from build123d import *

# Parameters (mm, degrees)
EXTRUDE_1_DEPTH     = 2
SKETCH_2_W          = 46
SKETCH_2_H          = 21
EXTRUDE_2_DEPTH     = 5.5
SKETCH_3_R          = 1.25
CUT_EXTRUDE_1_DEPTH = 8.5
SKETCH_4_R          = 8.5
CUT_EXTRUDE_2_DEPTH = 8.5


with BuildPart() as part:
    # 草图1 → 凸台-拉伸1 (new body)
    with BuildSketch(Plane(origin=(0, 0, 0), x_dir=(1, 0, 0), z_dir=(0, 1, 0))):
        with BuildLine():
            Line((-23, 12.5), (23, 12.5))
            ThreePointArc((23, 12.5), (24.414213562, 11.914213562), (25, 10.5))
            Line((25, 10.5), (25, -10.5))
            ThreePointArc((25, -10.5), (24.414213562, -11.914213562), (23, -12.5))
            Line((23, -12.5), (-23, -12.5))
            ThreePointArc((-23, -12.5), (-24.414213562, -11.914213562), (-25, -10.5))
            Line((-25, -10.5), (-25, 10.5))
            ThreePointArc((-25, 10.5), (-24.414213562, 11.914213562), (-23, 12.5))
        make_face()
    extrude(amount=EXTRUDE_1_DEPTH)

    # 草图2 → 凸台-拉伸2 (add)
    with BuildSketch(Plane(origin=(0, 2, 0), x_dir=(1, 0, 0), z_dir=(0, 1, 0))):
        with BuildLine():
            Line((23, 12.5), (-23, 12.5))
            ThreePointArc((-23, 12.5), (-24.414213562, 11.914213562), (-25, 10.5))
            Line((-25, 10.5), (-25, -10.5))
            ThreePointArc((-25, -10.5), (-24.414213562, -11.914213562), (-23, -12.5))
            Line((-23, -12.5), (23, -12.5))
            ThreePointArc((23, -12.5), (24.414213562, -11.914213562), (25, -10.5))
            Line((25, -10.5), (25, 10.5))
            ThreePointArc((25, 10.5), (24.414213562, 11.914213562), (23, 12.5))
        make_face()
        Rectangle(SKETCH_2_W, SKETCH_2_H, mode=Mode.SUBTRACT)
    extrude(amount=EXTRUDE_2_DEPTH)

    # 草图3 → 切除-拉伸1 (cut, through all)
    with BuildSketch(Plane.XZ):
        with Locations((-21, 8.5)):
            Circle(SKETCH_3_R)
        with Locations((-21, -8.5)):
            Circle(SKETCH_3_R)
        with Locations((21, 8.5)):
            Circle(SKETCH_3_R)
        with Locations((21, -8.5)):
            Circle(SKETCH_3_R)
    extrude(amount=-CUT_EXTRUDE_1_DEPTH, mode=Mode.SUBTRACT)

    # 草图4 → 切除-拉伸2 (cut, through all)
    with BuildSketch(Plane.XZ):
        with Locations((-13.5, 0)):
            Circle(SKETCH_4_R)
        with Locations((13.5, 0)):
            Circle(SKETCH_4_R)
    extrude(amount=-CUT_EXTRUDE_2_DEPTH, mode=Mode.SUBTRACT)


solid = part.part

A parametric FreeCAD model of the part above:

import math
import FreeCAD as App
import Part
import Sketcher

V = App.Vector


def add_polygon(sketch, points):
    """Adds a closed chain of lines whose ends are joined by coincident constraints."""
    first, n = sketch.GeometryCount, len(points)
    for a, b in zip(points, points[1:] + points[:1]):
        sketch.addGeometry(Part.LineSegment(App.Vector(*a, 0), App.Vector(*b, 0)), False)
    for i in range(n):
        sketch.addConstraint(Sketcher.Constraint("Coincident", first + i, 2, first + (i + 1) % n, 1))

doc = App.newDocument("Part")
body = doc.addObject("PartDesign::Body", "Body")

# Sketch on XZ plane
sketch1 = doc.addObject("Sketcher::SketchObject", "Sketch")
body.addObject(sketch1)
sketch1.AttachmentSupport = (doc.XZ_Plane, [""])
sketch1.MapMode = "FlatFace"
sketch1.addGeometry([
    Part.LineSegment(V(23, -12.5, 0), V(-23, -12.5, 0)),  # 0
    Part.ArcOfCircle(Part.Circle(V(-23, -10.5, 0), V(0, 0, 1), 2), math.radians(-180), math.radians(-90)),  # 1
    Part.LineSegment(V(-25, -10.5, 0), V(-25, 10.5, 0)),  # 2
    Part.ArcOfCircle(Part.Circle(V(-23, 10.5, 0), V(0, 0, 1), 2), math.radians(90), math.radians(180)),  # 3
    Part.LineSegment(V(-23, 12.5, 0), V(23, 12.5, 0)),  # 4
    Part.ArcOfCircle(Part.Circle(V(23, 10.5, 0), V(0, 0, 1), 2), math.radians(0), math.radians(90)),  # 5
    Part.LineSegment(V(25, 10.5, 0), V(25, -10.5, 0)),  # 6
    Part.ArcOfCircle(Part.Circle(V(23, -10.5, 0), V(0, 0, 1), 2), math.radians(-90), math.radians(0)),  # 7
], False)
sketch1.addConstraint([
    Sketcher.Constraint("Tangent", 0, 2, 1, 2),
    Sketcher.Constraint("Tangent", 1, 1, 2, 1),
    Sketcher.Constraint("Tangent", 2, 2, 3, 2),
    Sketcher.Constraint("Tangent", 3, 1, 4, 1),
    Sketcher.Constraint("Tangent", 4, 2, 5, 2),
    Sketcher.Constraint("Tangent", 5, 1, 6, 1),
    Sketcher.Constraint("Tangent", 6, 2, 7, 2),
    Sketcher.Constraint("Tangent", 7, 1, 0, 1),
    Sketcher.Constraint("Horizontal", 0),
    Sketcher.Constraint("Vertical", 2),
    Sketcher.Constraint("Horizontal", 4),
    Sketcher.Constraint("Vertical", 6),
    Sketcher.Constraint("Equal", 1, 3),
    Sketcher.Constraint("Equal", 3, 5),
    Sketcher.Constraint("Equal", 5, 7),
    Sketcher.Constraint("Symmetric", 1, 3, 5, 3, -1, 1),
    Sketcher.Constraint("Radius", 1, 2.0),
    Sketcher.Constraint("DistanceX", 0, 2, 0, 1, 46.0),
    Sketcher.Constraint("DistanceY", 2, 1, 2, 2, 21.0),
])
pad1 = doc.addObject("PartDesign::Pad", "Pad")
body.addObject(pad1)
pad1.Profile = sketch1
pad1.Length = 2
pad1.Reversed = True

# Sketch on XZ plane
sketch2 = doc.addObject("Sketcher::SketchObject", "Sketch001")
body.addObject(sketch2)
sketch2.AttachmentSupport = (doc.XZ_Plane, [""])
sketch2.MapMode = "FlatFace"
sketch2.AttachmentOffset = App.Placement(V(0, 0, -2), App.Rotation())
sketch2.addGeometry(Part.LineSegment(V(23, -12.5, 0), V(-23, -12.5, 0)), False)  # 0
sketch2.addGeometry(Part.ArcOfCircle(Part.Circle(V(-23, -10.5, 0), V(0, 0, 1), 2), math.radians(-180), math.radians(-90)), False)  # 1
sketch2.addGeometry(Part.LineSegment(V(-25, -10.5, 0), V(-25, 10.5, 0)), False)  # 2
sketch2.addGeometry(Part.ArcOfCircle(Part.Circle(V(-23, 10.5, 0), V(0, 0, 1), 2), math.radians(90), math.radians(180)), False)  # 3
sketch2.addGeometry(Part.LineSegment(V(-23, 12.5, 0), V(23, 12.5, 0)), False)  # 4
sketch2.addGeometry(Part.ArcOfCircle(Part.Circle(V(23, 10.5, 0), V(0, 0, 1), 2), math.radians(0), math.radians(90)), False)  # 5
sketch2.addGeometry(Part.LineSegment(V(25, 10.5, 0), V(25, -10.5, 0)), False)  # 6
sketch2.addGeometry(Part.ArcOfCircle(Part.Circle(V(23, -10.5, 0), V(0, 0, 1), 2), math.radians(-90), math.radians(0)), False)  # 7
add_polygon(sketch2, [(23, 10.5), (-23, 10.5), (-23, -10.5), (23, -10.5)])  # lines 8-11
sketch2.addConstraint([
    Sketcher.Constraint("Tangent", 0, 2, 1, 2),
    Sketcher.Constraint("Tangent", 1, 1, 2, 1),
    Sketcher.Constraint("Tangent", 2, 2, 3, 2),
    Sketcher.Constraint("Tangent", 3, 1, 4, 1),
    Sketcher.Constraint("Tangent", 4, 2, 5, 2),
    Sketcher.Constraint("Tangent", 5, 1, 6, 1),
    Sketcher.Constraint("Tangent", 6, 2, 7, 2),
    Sketcher.Constraint("Tangent", 7, 1, 0, 1),
    Sketcher.Constraint("Horizontal", 0),
    Sketcher.Constraint("Vertical", 2),
    Sketcher.Constraint("Horizontal", 4),
    Sketcher.Constraint("Vertical", 6),
    Sketcher.Constraint("Horizontal", 8),
    Sketcher.Constraint("Vertical", 9),
    Sketcher.Constraint("Horizontal", 10),
    Sketcher.Constraint("Vertical", 11),
    Sketcher.Constraint("Coincident", 8, 2, 3, 3),
    Sketcher.Constraint("Coincident", 9, 2, 1, 3),
    Sketcher.Constraint("Coincident", 10, 2, 7, 3),
    Sketcher.Constraint("Equal", 3, 5),
    Sketcher.Constraint("Symmetric", 1, 3, 5, 3, -1, 1),
    Sketcher.Constraint("Radius", 1, 2.0),
    Sketcher.Constraint("DistanceX", 0, 2, 0, 1, 46.0),
    Sketcher.Constraint("DistanceY", 2, 1, 2, 2, 21.0),
])
pad2 = doc.addObject("PartDesign::Pad", "Pad001")
body.addObject(pad2)
pad2.Profile = sketch2
pad2.Length = 5.5
pad2.Reversed = True

# Sketch on XZ plane
sketch3 = doc.addObject("Sketcher::SketchObject", "Sketch002")
body.addObject(sketch3)
sketch3.AttachmentSupport = (doc.XZ_Plane, [""])
sketch3.MapMode = "FlatFace"
sketch3.addGeometry([
    Part.Circle(V(-21, 8.5, 0), V(0, 0, 1), 1.2),
    Part.Circle(V(-21, -8.5, 0), V(0, 0, 1), 1.2),
    Part.Circle(V(21, 8.5, 0), V(0, 0, 1), 1.2),
    Part.Circle(V(21, -8.5, 0), V(0, 0, 1), 1.2),
], False)
sketch3.addConstraint([
    Sketcher.Constraint("Equal", 0, 1),
    Sketcher.Constraint("Equal", 1, 2),
    Sketcher.Constraint("Equal", 2, 3),
    Sketcher.Constraint("Symmetric", 1, 3, 2, 3, -1, 1),
    Sketcher.Constraint("Symmetric", 0, 3, 3, 3, -1, 1),
    Sketcher.Constraint("Symmetric", 0, 3, 2, 3, -2),
    Sketcher.Constraint("Diameter", 0, 2.5),
    Sketcher.Constraint("DistanceX", 0, 3, -1, 1, 21.0),
    Sketcher.Constraint("DistanceY", 1, 3, 0, 3, 17.0),
])
pocket1 = doc.addObject("PartDesign::Pocket", "Pocket")
body.addObject(pocket1)
pocket1.Profile = sketch3
pocket1.Type = "ThroughAll"

# Sketch on XZ plane
sketch4 = doc.addObject("Sketcher::SketchObject", "Sketch003")
body.addObject(sketch4)
sketch4.AttachmentSupport = (doc.XZ_Plane, [""])
sketch4.MapMode = "FlatFace"
sketch4.addGeometry([
    Part.Circle(V(-14, 0, 0), V(0, 0, 1), 8),
    Part.Circle(V(14, 0, 0), V(0, 0, 1), 8),
], False)
sketch4.addConstraint([
    Sketcher.Constraint("Equal", 0, 1),
    Sketcher.Constraint("Symmetric", 0, 3, 1, 3, -1, 1),
    Sketcher.Constraint("PointOnObject", 0, 3, -1),
    Sketcher.Constraint("Diameter", 0, 17.0),
    Sketcher.Constraint("DistanceX", 0, 3, 1, 3, 27.0),
])
pocket2 = doc.addObject("PartDesign::Pocket", "Pocket001")
body.addObject(pocket2)
pocket2.Profile = sketch4
pocket2.Type = "ThroughAll"

doc.recompute()
